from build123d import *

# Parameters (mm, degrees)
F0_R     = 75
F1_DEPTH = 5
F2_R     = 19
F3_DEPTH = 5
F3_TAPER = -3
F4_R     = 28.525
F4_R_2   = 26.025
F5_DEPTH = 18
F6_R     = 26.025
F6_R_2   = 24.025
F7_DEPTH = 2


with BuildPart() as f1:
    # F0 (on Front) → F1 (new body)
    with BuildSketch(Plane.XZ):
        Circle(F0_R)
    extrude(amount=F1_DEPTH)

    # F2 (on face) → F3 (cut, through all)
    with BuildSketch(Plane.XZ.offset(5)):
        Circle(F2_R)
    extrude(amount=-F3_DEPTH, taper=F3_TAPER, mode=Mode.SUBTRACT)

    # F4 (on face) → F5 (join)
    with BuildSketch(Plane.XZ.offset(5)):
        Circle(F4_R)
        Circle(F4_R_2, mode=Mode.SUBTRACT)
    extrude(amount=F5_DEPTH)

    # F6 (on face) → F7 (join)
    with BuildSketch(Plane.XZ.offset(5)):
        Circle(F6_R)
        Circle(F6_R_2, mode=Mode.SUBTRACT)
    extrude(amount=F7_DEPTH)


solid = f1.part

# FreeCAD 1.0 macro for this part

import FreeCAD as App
import Part
import Sketcher

doc = App.newDocument("Part")
body = doc.addObject("PartDesign::Body", "Body")

sketch1 = body.newObject("Sketcher::SketchObject", "Sketch")
sketch1.AttachmentSupport = (doc.getObject("XZ_Plane"), [""])
sketch1.MapMode = "FlatFace"
sketch1.addGeometry(Part.Circle(App.Vector(0, 0, 0), App.Vector(0, 0, 1), 75), False)
sketch1.addConstraint(Sketcher.Constraint("Coincident", 0, 3, -1, 1))
sketch1.addConstraint(Sketcher.Constraint("Diameter", 0, 150.0))
pad1 = body.newObject("PartDesign::Pad", "Pad")
pad1.Profile = sketch1
pad1.Length = 5

sketch2 = body.newObject("Sketcher::SketchObject", "Sketch001")
sketch2.AttachmentSupport = (doc.getObject("XZ_Plane"), [""])
sketch2.MapMode = "FlatFace"
sketch2.AttachmentOffset = App.Placement(App.Vector(0, 0, 5), App.Rotation())
sketch2.addGeometry(Part.Circle(App.Vector(0, 0, 0), App.Vector(0, 0, 1), 19), False)
sketch2.addConstraint(Sketcher.Constraint("Coincident", 0, 3, -1, 1))
sketch2.addConstraint(Sketcher.Constraint("Diameter", 0, 38.0))
pocket1 = body.newObject("PartDesign::Pocket", "Pocket")
pocket1.Profile = sketch2
pocket1.Type = "ThroughAll"
pocket1.TaperAngle = 3

sketch3 = body.newObject("Sketcher::SketchObject", "Sketch002")
sketch3.AttachmentSupport = (doc.getObject("XZ_Plane"), [""])
sketch3.MapMode = "FlatFace"
sketch3.AttachmentOffset = App.Placement(App.Vector(0, 0, 5), App.Rotation())
sketch3.addGeometry(Part.Circle(App.Vector(0, 0, 0), App.Vector(0, 0, 1), 29), False)
sketch3.addGeometry(Part.Circle(App.Vector(0, 0, 0), App.Vector(0, 0, 1), 26), False)
sketch3.addConstraint(Sketcher.Constraint("Coincident", 0, 3, -1, 1))
sketch3.addConstraint(Sketcher.Constraint("Coincident", 1, 3, -1, 1))
sketch3.addConstraint(Sketcher.Constraint("Diameter", 0, 57.05))
sketch3.addConstraint(Sketcher.Constraint("Diameter", 1, 52.05))
pad2 = body.newObject("PartDesign::Pad", "Pad001")
pad2.Profile = sketch3
pad2.Length = 18

sketch4 = body.newObject("Sketcher::SketchObject", "Sketch003")
sketch4.AttachmentSupport = (doc.getObject("XZ_Plane"), [""])
sketch4.MapMode = "FlatFace"
sketch4.AttachmentOffset = App.Placement(App.Vector(0, 0, 5), App.Rotation())
sketch4.addGeometry(Part.Circle(App.Vector(0, 0, 0), App.Vector(0, 0, 1), 26), False)
sketch4.addGeometry(Part.Circle(App.Vector(0, 0, 0), App.Vector(0, 0, 1), 24), False)
sketch4.addConstraint(Sketcher.Constraint("Coincident", 0, 3, -1, 1))
sketch4.addConstraint(Sketcher.Constraint("Coincident", 1, 3, -1, 1))
sketch4.addConstraint(Sketcher.Constraint("Diameter", 0, 52.05))
sketch4.addConstraint(Sketcher.Constraint("Diameter", 1, 48.05))
pad3 = body.newObject("PartDesign::Pad", "Pad002")
pad3.Profile = sketch4
pad3.Length = 2

doc.recompute()
